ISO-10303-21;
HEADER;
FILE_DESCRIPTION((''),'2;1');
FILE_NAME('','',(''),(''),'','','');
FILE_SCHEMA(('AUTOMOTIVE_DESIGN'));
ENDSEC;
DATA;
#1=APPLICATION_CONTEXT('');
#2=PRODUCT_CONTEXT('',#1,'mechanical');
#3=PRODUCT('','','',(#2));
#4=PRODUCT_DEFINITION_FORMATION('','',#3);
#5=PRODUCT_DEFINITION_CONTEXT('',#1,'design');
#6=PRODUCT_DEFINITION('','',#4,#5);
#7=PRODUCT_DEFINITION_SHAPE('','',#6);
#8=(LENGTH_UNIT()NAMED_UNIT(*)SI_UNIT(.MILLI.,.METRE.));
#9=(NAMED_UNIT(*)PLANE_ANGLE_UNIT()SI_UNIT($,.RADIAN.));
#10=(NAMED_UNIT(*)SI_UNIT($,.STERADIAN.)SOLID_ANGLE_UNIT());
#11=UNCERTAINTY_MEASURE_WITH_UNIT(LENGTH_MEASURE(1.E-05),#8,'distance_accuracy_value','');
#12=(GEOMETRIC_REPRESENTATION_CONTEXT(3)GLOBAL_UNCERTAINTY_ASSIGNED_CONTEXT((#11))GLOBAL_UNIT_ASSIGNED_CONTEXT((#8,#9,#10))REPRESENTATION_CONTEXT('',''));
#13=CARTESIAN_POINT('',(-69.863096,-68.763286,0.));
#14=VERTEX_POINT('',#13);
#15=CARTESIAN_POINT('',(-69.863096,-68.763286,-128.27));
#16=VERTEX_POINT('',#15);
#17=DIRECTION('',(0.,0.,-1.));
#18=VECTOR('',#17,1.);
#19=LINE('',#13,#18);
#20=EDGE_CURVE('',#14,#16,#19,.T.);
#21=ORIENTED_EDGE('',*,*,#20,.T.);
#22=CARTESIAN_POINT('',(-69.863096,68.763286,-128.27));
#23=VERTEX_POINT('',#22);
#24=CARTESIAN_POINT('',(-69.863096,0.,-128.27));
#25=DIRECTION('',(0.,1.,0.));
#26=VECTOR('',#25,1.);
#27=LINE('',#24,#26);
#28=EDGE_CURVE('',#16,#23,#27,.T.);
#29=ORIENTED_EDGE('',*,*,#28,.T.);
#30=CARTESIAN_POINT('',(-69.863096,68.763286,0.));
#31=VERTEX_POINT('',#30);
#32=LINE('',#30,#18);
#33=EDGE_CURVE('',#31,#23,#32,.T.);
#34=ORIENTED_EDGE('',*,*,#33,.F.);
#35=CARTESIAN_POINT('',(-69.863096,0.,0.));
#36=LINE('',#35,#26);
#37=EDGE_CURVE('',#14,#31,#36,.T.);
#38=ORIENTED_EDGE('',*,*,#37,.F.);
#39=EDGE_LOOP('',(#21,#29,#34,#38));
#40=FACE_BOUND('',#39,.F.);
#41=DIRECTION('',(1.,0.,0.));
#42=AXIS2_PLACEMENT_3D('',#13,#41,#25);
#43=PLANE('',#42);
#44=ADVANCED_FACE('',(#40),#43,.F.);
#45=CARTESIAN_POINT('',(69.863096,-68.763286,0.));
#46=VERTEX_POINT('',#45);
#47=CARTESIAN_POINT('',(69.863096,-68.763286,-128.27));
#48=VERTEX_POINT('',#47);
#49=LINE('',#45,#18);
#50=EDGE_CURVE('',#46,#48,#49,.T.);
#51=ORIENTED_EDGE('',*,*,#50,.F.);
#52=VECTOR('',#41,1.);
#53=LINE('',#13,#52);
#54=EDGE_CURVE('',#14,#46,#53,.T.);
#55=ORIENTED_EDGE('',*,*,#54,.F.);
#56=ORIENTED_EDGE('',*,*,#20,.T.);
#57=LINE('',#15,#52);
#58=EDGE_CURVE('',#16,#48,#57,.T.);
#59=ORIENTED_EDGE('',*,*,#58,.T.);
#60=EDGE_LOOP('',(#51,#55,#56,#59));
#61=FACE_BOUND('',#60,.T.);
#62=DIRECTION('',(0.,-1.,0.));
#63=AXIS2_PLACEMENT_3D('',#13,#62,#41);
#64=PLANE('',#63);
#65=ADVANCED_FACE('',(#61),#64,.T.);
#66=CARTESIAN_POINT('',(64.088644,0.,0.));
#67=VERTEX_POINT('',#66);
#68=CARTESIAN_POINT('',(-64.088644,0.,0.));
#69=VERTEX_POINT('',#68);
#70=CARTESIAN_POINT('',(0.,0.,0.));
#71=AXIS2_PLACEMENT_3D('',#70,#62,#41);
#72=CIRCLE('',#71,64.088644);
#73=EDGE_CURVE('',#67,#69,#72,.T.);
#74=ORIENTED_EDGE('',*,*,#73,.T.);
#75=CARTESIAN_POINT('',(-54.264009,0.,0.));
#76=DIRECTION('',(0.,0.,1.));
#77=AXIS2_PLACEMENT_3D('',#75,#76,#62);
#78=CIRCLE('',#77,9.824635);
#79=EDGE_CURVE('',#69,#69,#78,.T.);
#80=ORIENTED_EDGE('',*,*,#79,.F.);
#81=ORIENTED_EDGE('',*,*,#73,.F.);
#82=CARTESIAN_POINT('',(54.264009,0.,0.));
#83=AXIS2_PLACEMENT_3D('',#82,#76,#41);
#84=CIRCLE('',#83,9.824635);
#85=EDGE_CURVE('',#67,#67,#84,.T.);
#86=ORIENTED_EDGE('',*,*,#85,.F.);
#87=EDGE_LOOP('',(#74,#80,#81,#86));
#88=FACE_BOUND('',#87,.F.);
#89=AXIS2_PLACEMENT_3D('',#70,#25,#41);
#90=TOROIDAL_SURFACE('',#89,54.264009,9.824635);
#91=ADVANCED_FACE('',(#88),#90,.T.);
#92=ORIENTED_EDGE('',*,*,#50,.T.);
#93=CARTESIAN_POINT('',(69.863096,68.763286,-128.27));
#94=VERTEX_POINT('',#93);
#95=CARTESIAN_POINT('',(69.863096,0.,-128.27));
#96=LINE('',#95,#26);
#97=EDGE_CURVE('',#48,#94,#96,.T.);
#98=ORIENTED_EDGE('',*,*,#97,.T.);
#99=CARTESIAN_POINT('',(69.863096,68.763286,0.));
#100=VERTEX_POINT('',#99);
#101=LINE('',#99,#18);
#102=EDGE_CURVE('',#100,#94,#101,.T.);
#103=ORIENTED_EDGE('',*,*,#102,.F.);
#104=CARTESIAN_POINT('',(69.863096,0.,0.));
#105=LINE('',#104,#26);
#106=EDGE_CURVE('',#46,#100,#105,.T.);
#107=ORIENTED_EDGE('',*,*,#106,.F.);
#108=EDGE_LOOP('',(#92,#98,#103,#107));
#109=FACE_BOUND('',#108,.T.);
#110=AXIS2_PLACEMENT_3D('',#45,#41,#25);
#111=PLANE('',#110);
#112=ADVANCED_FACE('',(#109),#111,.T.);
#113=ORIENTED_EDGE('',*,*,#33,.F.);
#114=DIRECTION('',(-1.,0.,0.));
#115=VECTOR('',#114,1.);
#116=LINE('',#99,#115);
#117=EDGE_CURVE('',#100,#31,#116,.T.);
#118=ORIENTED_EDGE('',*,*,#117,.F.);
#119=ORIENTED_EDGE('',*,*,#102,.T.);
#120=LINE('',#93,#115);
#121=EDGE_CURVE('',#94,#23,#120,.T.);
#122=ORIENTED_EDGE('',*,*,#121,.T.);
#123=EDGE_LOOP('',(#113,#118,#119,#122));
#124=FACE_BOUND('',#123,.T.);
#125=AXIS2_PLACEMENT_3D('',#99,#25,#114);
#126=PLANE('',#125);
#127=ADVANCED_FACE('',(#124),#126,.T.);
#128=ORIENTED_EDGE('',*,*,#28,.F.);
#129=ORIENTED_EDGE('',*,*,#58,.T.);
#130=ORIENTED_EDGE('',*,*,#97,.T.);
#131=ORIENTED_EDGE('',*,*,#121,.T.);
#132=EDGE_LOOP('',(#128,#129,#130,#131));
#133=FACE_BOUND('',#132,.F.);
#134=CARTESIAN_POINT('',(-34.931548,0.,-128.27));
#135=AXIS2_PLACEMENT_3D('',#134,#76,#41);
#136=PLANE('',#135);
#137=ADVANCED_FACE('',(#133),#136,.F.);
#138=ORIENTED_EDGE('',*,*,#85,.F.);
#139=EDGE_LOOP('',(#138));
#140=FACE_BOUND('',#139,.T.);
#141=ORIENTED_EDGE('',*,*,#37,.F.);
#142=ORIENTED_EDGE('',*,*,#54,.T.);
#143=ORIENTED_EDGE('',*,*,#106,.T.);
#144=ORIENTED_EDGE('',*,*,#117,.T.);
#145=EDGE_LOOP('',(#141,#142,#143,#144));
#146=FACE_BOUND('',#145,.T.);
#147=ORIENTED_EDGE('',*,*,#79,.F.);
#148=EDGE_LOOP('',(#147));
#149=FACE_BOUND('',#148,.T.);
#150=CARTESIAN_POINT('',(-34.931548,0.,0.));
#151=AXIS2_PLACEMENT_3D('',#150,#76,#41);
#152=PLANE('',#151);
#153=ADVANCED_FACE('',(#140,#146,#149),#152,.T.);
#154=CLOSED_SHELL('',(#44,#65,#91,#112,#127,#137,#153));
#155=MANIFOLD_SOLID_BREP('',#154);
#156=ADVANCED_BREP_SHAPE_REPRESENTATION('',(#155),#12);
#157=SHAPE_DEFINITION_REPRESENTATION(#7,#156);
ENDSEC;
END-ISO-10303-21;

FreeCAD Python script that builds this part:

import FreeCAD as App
import Part
import Sketcher
Q = App.Units.Quantity


def add_polygon(sketch, points):
    """Adds a closed chain of lines whose ends are joined by coincident constraints."""
    first, n = sketch.GeometryCount, len(points)
    for a, b in zip(points, points[1:] + points[:1]):
        sketch.addGeometry(Part.LineSegment(App.Vector(*a, 0), App.Vector(*b, 0)), False)
    for i in range(n):
        sketch.addConstraint(Sketcher.Constraint("Coincident", first + i, 2, first + (i + 1) % n, 1))

doc = App.newDocument("Part")
params = doc.addObject("Spreadsheet::Sheet", "Params")
for row, (alias, value) in enumerate([
    ("revolution_angle", "360 deg"),
    ("pad1_length", "5.05 in"),
], start=1):
    params.set(f"A{row}", alias)
    params.set(f"B{row}", "=" + value)
    params.setAlias(f"B{row}", alias)

body = doc.addObject("PartDesign::Body", "Body")

# Sketch on XY plane
sketch1 = body.newObject("Sketcher::SketchObject", "Sketch")
sketch1.AttachmentSupport = (doc.getObject("XY_Plane"), [""])
sketch1.MapMode = "FlatFace"
sketch1.addGeometry(Part.Circle(App.Vector(54, 0, 0), App.Vector(0, 0, 1), 10), False)
sketch1.addConstraint(Sketcher.Constraint("PointOnObject", 0, 3, -1))
sketch1.addConstraint(Sketcher.Constraint("Diameter", 0, Q("19.64927 mm")))
sketch1.addConstraint(Sketcher.Constraint("DistanceX", -1, 1, 0, 3, Q("54.264009 mm")))
revolution = body.newObject("PartDesign::Revolution", "Revolution")
revolution.Profile = sketch1
revolution.ReferenceAxis = (sketch1, ["V_Axis"])
revolution.setExpression("Angle", "Params.revolution_angle")

# Sketch on XY plane
sketch2 = body.newObject("Sketcher::SketchObject", "Sketch001")
sketch2.AttachmentSupport = (doc.getObject("XY_Plane"), [""])
sketch2.MapMode = "FlatFace"
add_polygon(sketch2, [(-70, 69), (-70, -69), (70, -69), (70, 69)])  # lines 0-3
sketch2.addConstraint(Sketcher.Constraint("Vertical", 0))
sketch2.addConstraint(Sketcher.Constraint("Horizontal", 1))
sketch2.addConstraint(Sketcher.Constraint("Vertical", 2))
sketch2.addConstraint(Sketcher.Constraint("Horizontal", 3))
sketch2.addConstraint(Sketcher.Constraint("Symmetric", 0, 2, 2, 2, -1, 1))
sketch2.addConstraint(Sketcher.Constraint("DistanceX", 1, 1, 1, 2, Q("139.726192 mm")))
sketch2.addConstraint(Sketcher.Constraint("DistanceY", 0, 2, 0, 1, Q("137.526572 mm")))
pad1 = body.newObject("PartDesign::Pad", "Pad")
pad1.Profile = sketch2
pad1.setExpression("Length", "Params.pad1_length")
pad1.Reversed = True

doc.recompute()
